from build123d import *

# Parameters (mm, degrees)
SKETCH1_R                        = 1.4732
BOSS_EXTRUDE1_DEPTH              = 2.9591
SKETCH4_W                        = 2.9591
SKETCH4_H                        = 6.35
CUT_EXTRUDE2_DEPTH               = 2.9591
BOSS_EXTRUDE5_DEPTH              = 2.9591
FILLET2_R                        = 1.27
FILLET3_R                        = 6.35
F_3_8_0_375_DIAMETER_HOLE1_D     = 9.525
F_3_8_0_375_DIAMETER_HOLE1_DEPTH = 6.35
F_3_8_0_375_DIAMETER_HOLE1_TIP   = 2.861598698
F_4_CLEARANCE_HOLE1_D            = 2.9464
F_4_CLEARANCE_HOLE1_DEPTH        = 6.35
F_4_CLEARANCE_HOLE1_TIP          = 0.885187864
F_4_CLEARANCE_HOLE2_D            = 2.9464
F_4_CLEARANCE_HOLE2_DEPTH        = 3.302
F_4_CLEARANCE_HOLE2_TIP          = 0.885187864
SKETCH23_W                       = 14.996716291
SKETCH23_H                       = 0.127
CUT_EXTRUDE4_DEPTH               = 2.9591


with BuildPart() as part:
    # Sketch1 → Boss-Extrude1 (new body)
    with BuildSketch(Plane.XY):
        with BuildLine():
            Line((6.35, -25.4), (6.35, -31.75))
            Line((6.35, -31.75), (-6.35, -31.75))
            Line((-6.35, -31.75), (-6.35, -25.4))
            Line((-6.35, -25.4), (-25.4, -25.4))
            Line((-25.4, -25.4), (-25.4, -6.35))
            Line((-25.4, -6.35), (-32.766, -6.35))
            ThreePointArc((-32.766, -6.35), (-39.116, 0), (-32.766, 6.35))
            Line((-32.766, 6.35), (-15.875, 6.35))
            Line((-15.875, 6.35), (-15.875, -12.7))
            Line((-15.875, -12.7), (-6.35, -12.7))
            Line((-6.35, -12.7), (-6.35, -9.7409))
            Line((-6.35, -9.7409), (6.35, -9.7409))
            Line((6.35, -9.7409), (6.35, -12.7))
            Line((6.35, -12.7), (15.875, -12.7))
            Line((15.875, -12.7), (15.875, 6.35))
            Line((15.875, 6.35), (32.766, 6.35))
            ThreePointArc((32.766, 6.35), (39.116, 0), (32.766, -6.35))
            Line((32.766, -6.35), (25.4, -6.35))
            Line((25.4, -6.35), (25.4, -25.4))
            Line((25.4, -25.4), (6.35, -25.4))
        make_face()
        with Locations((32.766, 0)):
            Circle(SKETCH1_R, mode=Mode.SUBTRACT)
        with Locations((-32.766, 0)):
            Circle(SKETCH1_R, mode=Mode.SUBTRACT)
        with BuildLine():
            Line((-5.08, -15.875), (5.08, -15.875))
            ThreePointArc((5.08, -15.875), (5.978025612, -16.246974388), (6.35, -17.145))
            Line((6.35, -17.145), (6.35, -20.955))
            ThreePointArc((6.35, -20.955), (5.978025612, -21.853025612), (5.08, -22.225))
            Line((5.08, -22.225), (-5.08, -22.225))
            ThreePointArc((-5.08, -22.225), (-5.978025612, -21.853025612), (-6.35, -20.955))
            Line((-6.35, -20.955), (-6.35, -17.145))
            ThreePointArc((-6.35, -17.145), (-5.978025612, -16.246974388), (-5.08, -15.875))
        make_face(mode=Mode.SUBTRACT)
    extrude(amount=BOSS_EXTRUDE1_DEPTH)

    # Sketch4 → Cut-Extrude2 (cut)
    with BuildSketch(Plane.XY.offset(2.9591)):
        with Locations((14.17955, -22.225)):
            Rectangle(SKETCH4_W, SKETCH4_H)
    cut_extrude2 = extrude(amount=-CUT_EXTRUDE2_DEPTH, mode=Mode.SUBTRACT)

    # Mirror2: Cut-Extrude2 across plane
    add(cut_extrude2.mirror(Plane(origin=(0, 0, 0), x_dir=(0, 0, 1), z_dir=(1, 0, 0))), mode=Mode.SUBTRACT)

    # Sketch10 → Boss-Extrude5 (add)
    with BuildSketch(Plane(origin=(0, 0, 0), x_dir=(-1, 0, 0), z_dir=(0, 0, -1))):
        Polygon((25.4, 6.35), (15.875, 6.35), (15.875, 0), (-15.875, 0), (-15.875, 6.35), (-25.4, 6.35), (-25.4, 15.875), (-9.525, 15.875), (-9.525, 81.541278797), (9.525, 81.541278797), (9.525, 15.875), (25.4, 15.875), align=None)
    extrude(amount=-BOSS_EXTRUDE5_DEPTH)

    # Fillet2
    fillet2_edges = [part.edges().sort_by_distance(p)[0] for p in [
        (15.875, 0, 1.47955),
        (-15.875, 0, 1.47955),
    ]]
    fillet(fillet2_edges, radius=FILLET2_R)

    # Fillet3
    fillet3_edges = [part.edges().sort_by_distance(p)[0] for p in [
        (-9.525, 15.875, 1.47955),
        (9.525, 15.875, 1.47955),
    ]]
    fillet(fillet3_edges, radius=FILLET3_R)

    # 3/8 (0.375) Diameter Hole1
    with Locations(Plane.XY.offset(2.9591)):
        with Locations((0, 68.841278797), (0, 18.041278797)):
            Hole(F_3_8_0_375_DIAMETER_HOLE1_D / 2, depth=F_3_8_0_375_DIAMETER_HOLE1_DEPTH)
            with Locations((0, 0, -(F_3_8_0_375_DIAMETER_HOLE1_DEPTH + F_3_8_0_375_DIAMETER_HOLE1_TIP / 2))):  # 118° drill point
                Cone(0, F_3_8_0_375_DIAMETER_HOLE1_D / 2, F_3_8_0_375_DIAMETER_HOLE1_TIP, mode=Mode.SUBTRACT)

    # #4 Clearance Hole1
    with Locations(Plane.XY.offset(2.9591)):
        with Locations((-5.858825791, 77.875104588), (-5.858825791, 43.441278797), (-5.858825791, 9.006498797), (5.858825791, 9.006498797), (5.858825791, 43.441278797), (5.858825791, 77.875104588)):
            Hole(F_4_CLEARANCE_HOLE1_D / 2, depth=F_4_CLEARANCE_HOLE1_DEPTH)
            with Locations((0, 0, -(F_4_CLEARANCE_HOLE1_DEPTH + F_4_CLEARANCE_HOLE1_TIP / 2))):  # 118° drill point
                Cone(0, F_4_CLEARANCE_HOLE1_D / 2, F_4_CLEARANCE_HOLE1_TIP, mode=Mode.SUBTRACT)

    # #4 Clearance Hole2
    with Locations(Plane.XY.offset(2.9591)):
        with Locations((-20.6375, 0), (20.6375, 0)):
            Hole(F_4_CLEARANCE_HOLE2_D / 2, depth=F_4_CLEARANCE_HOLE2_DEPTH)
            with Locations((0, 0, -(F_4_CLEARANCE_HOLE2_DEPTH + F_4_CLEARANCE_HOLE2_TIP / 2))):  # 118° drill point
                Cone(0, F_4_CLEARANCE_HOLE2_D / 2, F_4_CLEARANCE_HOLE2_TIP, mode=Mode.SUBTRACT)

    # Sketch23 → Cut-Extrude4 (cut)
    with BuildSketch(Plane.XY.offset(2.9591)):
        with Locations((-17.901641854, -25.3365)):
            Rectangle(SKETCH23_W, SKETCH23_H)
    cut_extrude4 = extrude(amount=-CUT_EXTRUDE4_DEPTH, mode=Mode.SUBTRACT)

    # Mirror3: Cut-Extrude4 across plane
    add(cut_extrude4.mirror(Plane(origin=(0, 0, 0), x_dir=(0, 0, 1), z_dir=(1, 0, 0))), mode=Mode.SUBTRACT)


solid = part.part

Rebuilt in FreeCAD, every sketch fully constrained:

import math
import FreeCAD as App
import Part
import Sketcher

V = App.Vector
Q = App.Units.Quantity


def edges_at(feature, points):
    """Names of the edges that pass closest to the given points."""
    edges = feature.Shape.Edges
    near = lambda p: min(range(len(edges)), key=lambda i: edges[i].distToShape(Part.Vertex(*p))[0])
    return sorted({f"Edge{near(p) + 1}" for p in points})


def add_polygon(sketch, points):
    """Adds a closed chain of lines whose ends are joined by coincident constraints."""
    first, n = sketch.GeometryCount, len(points)
    for a, b in zip(points, points[1:] + points[:1]):
        sketch.addGeometry(Part.LineSegment(App.Vector(*a, 0), App.Vector(*b, 0)), False)
    for i in range(n):
        sketch.addConstraint(Sketcher.Constraint("Coincident", first + i, 2, first + (i + 1) % n, 1))

doc = App.newDocument("Part")
body = doc.addObject("PartDesign::Body", "Body")

sketch1 = body.newObject("Sketcher::SketchObject", "Sketch")
sketch1.AttachmentSupport = (doc.getObject("XY_Plane"), [""])
sketch1.MapMode = "FlatFace"
sketch1.addGeometry(Part.LineSegment(V(6.3, -31.8, 0), V(6.3, -25.4, 0)), False)
sketch1.addGeometry(Part.LineSegment(V(6.3, -25.4, 0), V(25.4, -25.4, 0)), False)
sketch1.addGeometry(Part.LineSegment(V(25.4, -25.4, 0), V(25.4, -6.3, 0)), False)
sketch1.addGeometry(Part.LineSegment(V(25.4, -6.3, 0), V(32.8, -6.3, 0)), False)
sketch1.addGeometry(Part.ArcOfCircle(Part.Circle(V(32.8, 0, 0), V(0, 0, 1), 6.3), math.radians(-90), math.radians(90)), False)
sketch1.addGeometry(Part.LineSegment(V(32.8, 6.3, 0), V(15.9, 6.3, 0)), False)
sketch1.addGeometry(Part.LineSegment(V(15.9, 6.3, 0), V(15.9, -12.7, 0)), False)
sketch1.addGeometry(Part.LineSegment(V(15.9, -12.7, 0), V(6.3, -12.7, 0)), False)
sketch1.addGeometry(Part.LineSegment(V(6.3, -12.7, 0), V(6.3, -9.7, 0)), False)
sketch1.addGeometry(Part.LineSegment(V(6.3, -9.7, 0), V(-6.3, -9.7, 0)), False)
sketch1.addGeometry(Part.LineSegment(V(-6.3, -9.7, 0), V(-6.3, -12.7, 0)), False)
sketch1.addGeometry(Part.LineSegment(V(-6.3, -12.7, 0), V(-15.9, -12.7, 0)), False)
sketch1.addGeometry(Part.LineSegment(V(-15.9, -12.7, 0), V(-15.9, 6.3, 0)), False)
sketch1.addGeometry(Part.LineSegment(V(-15.9, 6.3, 0), V(-32.8, 6.3, 0)), False)
sketch1.addGeometry(Part.ArcOfCircle(Part.Circle(V(-32.8, 0, 0), V(0, 0, 1), 6.3), math.radians(90), math.radians(270)), False)
sketch1.addGeometry(Part.LineSegment(V(-32.8, -6.3, 0), V(-25.4, -6.3, 0)), False)
sketch1.addGeometry(Part.LineSegment(V(-25.4, -6.3, 0), V(-25.4, -25.4, 0)), False)
sketch1.addGeometry(Part.LineSegment(V(-25.4, -25.4, 0), V(-6.3, -25.4, 0)), False)
sketch1.addGeometry(Part.LineSegment(V(-6.3, -25.4, 0), V(-6.3, -31.8, 0)), False)
sketch1.addGeometry(Part.LineSegment(V(-6.3, -31.8, 0), V(6.3, -31.8, 0)), False)
sketch1.addGeometry(Part.LineSegment(V(-5.1, -15.9, 0), V(5.1, -15.9, 0)), False)
sketch1.addGeometry(Part.ArcOfCircle(Part.Circle(V(5.1, -17.1, 0), V(0, 0, 1), 1.3), math.radians(0), math.radians(90)), False)
sketch1.addGeometry(Part.LineSegment(V(6.3, -17.1, 0), V(6.3, -21, 0)), False)
sketch1.addGeometry(Part.ArcOfCircle(Part.Circle(V(5.1, -21, 0), V(0, 0, 1), 1.3), math.radians(-90), math.radians(0)), False)
sketch1.addGeometry(Part.LineSegment(V(5.1, -22.2, 0), V(-5.1, -22.2, 0)), False)
sketch1.addGeometry(Part.ArcOfCircle(Part.Circle(V(-5.1, -21, 0), V(0, 0, 1), 1.3), math.radians(180), math.radians(270)), False)
sketch1.addGeometry(Part.LineSegment(V(-6.3, -21, 0), V(-6.3, -17.1, 0)), False)
sketch1.addGeometry(Part.ArcOfCircle(Part.Circle(V(-5.1, -17.1, 0), V(0, 0, 1), 1.3), math.radians(90), math.radians(180)), False)
sketch1.addGeometry(Part.Circle(V(32.8, 0, 0), V(0, 0, 1), 1.5), False)
sketch1.addGeometry(Part.Circle(V(-32.8, 0, 0), V(0, 0, 1), 1.5), False)
sketch1.addConstraint(Sketcher.Constraint("Coincident", 0, 2, 1, 1))
sketch1.addConstraint(Sketcher.Constraint("Coincident", 1, 2, 2, 1))
sketch1.addConstraint(Sketcher.Constraint("Coincident", 2, 2, 3, 1))
sketch1.addConstraint(Sketcher.Constraint("Tangent", 3, 2, 4, 1))
sketch1.addConstraint(Sketcher.Constraint("Tangent", 4, 2, 5, 1))
sketch1.addConstraint(Sketcher.Constraint("Coincident", 5, 2, 6, 1))
sketch1.addConstraint(Sketcher.Constraint("Coincident", 6, 2, 7, 1))
sketch1.addConstraint(Sketcher.Constraint("Coincident", 7, 2, 8, 1))
sketch1.addConstraint(Sketcher.Constraint("Coincident", 8, 2, 9, 1))
sketch1.addConstraint(Sketcher.Constraint("Coincident", 9, 2, 10, 1))
sketch1.addConstraint(Sketcher.Constraint("Coincident", 10, 2, 11, 1))
sketch1.addConstraint(Sketcher.Constraint("Coincident", 11, 2, 12, 1))
sketch1.addConstraint(Sketcher.Constraint("Coincident", 12, 2, 13, 1))
sketch1.addConstraint(Sketcher.Constraint("Tangent", 13, 2, 14, 1))
sketch1.addConstraint(Sketcher.Constraint("Tangent", 14, 2, 15, 1))
sketch1.addConstraint(Sketcher.Constraint("Coincident", 15, 2, 16, 1))
sketch1.addConstraint(Sketcher.Constraint("Coincident", 16, 2, 17, 1))
sketch1.addConstraint(Sketcher.Constraint("Coincident", 17, 2, 18, 1))
sketch1.addConstraint(Sketcher.Constraint("Coincident", 18, 2, 19, 1))
sketch1.addConstraint(Sketcher.Constraint("Coincident", 19, 2, 0, 1))
sketch1.addConstraint(Sketcher.Constraint("Tangent", 20, 2, 21, 2))
sketch1.addConstraint(Sketcher.Constraint("Tangent", 21, 1, 22, 1))
sketch1.addConstraint(Sketcher.Constraint("Tangent", 22, 2, 23, 2))
sketch1.addConstraint(Sketcher.Constraint("Tangent", 23, 1, 24, 1))
sketch1.addConstraint(Sketcher.Constraint("Tangent", 24, 2, 25, 2))
sketch1.addConstraint(Sketcher.Constraint("Tangent", 25, 1, 26, 1))
sketch1.addConstraint(Sketcher.Constraint("Tangent", 26, 2, 27, 2))
sketch1.addConstraint(Sketcher.Constraint("Tangent", 27, 1, 20, 1))
sketch1.addConstraint(Sketcher.Constraint("Vertical", 0))
sketch1.addConstraint(Sketcher.Constraint("Horizontal", 1))
sketch1.addConstraint(Sketcher.Constraint("Vertical", 2))
sketch1.addConstraint(Sketcher.Constraint("Horizontal", 3))
sketch1.addConstraint(Sketcher.Constraint("Horizontal", 5))
sketch1.addConstraint(Sketcher.Constraint("Vertical", 6))
sketch1.addConstraint(Sketcher.Constraint("Horizontal", 7))
sketch1.addConstraint(Sketcher.Constraint("Vertical", 8))
sketch1.addConstraint(Sketcher.Constraint("Horizontal", 9))
sketch1.addConstraint(Sketcher.Constraint("Vertical", 10))
sketch1.addConstraint(Sketcher.Constraint("Horizontal", 11))
sketch1.addConstraint(Sketcher.Constraint("Vertical", 12))
sketch1.addConstraint(Sketcher.Constraint("Horizontal", 13))
sketch1.addConstraint(Sketcher.Constraint("Horizontal", 15))
sketch1.addConstraint(Sketcher.Constraint("Vertical", 16))
sketch1.addConstraint(Sketcher.Constraint("Horizontal", 17))
sketch1.addConstraint(Sketcher.Constraint("Vertical", 18))
sketch1.addConstraint(Sketcher.Constraint("Horizontal", 19))
sketch1.addConstraint(Sketcher.Constraint("Horizontal", 20))
sketch1.addConstraint(Sketcher.Constraint("Vertical", 22))
sketch1.addConstraint(Sketcher.Constraint("Horizontal", 24))
sketch1.addConstraint(Sketcher.Constraint("Vertical", 26))
sketch1.addConstraint(Sketcher.Constraint("Coincident", 28, 3, 4, 3))
sketch1.addConstraint(Sketcher.Constraint("Coincident", 29, 3, 14, 3))
sketch1.addConstraint(Sketcher.Constraint("Equal", 4, 14))
sketch1.addConstraint(Sketcher.Constraint("Equal", 21, 23))
sketch1.addConstraint(Sketcher.Constraint("Equal", 23, 25))
sketch1.addConstraint(Sketcher.Constraint("Equal", 25, 27))
sketch1.addConstraint(Sketcher.Constraint("Equal", 28, 29))
sketch1.addConstraint(Sketcher.Constraint("Symmetric", 4, 3, 14, 3, -1, 1))
sketch1.addConstraint(Sketcher.Constraint("Symmetric", 7, 2, 10, 2, -2))
sketch1.addConstraint(Sketcher.Constraint("Symmetric", 5, 2, 12, 2, -2))
sketch1.addConstraint(Sketcher.Constraint("Symmetric", 1, 2, 16, 2, -2))
sketch1.addConstraint(Sketcher.Constraint("Vertical", 0, 2, 7, 2))
sketch1.addConstraint(Sketcher.Constraint("Vertical", 10, 2, 17, 2))
sketch1.addConstraint(Sketcher.Constraint("Vertical", 19, 2, 21, 1))
sketch1.addConstraint(Sketcher.Constraint("Vertical", 18, 2, 25, 1))
sketch1.addConstraint(Sketcher.Constraint("Equal", 17, 2))
sketch1.addConstraint(Sketcher.Constraint("Equal", 2, 6))
sketch1.addConstraint(Sketcher.Constraint("Radius", 4, Q("0.25 in")))
sketch1.addConstraint(Sketcher.Constraint("Radius", 21, Q("0.05 in")))
sketch1.addConstraint(Sketcher.Constraint("Diameter", 28, Q("0.116 in")))
sketch1.addConstraint(Sketcher.Constraint("DistanceX", 9, 2, 9, 1, Q("0.5 in")))
sketch1.addConstraint(Sketcher.Constraint("DistanceY", 0, 2, -1, 1, Q("1 in")))
sketch1.addConstraint(Sketcher.Constraint("DistanceX", 3, 1, 3, 2, Q("0.29 in")))
sketch1.addConstraint(Sketcher.Constraint("DistanceY", 0, 1, 0, 2, Q("0.25 in")))
sketch1.addConstraint(Sketcher.Constraint("DistanceY", 22, 2, 22, 1, Q("0.15 in")))
sketch1.addConstraint(Sketcher.Constraint("DistanceX", 5, 2, 5, 1, Q("0.665 in")))
sketch1.addConstraint(Sketcher.Constraint("DistanceY", 8, 1, 8, 2, Q("0.1165 in")))
sketch1.addConstraint(Sketcher.Constraint("DistanceY", 21, 3, -1, 1, Q("0.675 in")))
pad1 = body.newObject("PartDesign::Pad", "Pad")
pad1.Profile = sketch1
pad1.Length = Q("0.1165 in")

sketch2 = body.newObject("Sketcher::SketchObject", "Sketch001")
sketch2.AttachmentSupport = (doc.getObject("XY_Plane"), [""])
sketch2.MapMode = "FlatFace"
sketch2.AttachmentOffset = App.Placement(V(0, 0, 0.1165 * 25.4), App.Rotation())
add_polygon(sketch2, [(12.7, -19.1), (12.7, -25.4), (15.7, -25.4), (15.7, -19.1)])
sketch2.addConstraint(Sketcher.Constraint("Vertical", 0))
sketch2.addConstraint(Sketcher.Constraint("Horizontal", 1))
sketch2.addConstraint(Sketcher.Constraint("Vertical", 2))
sketch2.addConstraint(Sketcher.Constraint("Horizontal", 3))
sketch2.addConstraint(Sketcher.Constraint("DistanceY", 0, 2, -1, 1, Q("1 in")))
sketch2.addConstraint(Sketcher.Constraint("DistanceY", 0, 2, 0, 1, Q("0.25 in")))
sketch2.addConstraint(Sketcher.Constraint("DistanceX", -1, 1, 0, 2, Q("0.5 in")))
sketch2.addConstraint(Sketcher.Constraint("DistanceX", 1, 1, 1, 2, Q("0.1165 in")))
pocket1 = body.newObject("PartDesign::Pocket", "Pocket")
pocket1.Profile = sketch2
pocket1.Length = Q("0.1165 in")
doc.recompute()

mirrored = body.newObject("PartDesign::Mirrored", "Mirrored")
mirrored.Originals = [pocket1]
mirrored.MirrorPlane = (doc.getObject("YZ_Plane"), [""])
body.Tip = mirrored

sketch3 = body.newObject("Sketcher::SketchObject", "Sketch002")
sketch3.AttachmentSupport = (doc.getObject("XY_Plane"), [""])
sketch3.MapMode = "FlatFace"
add_polygon(sketch3, [(-16, 6), (-25, 6), (-25, 16), (-10, 16), (-10, 82), (10, 82), (10, 16), (25, 16), (25, 6), (16, 6), (16, 0), (-16, 0)])
sketch3.addConstraint(Sketcher.Constraint("Horizontal", 0))
sketch3.addConstraint(Sketcher.Constraint("Vertical", 1))
sketch3.addConstraint(Sketcher.Constraint("Horizontal", 2))
sketch3.addConstraint(Sketcher.Constraint("Vertical", 3))
sketch3.addConstraint(Sketcher.Constraint("Horizontal", 4))
sketch3.addConstraint(Sketcher.Constraint("Vertical", 5))
sketch3.addConstraint(Sketcher.Constraint("Horizontal", 6))
sketch3.addConstraint(Sketcher.Constraint("Vertical", 7))
sketch3.addConstraint(Sketcher.Constraint("Horizontal", 8))
sketch3.addConstraint(Sketcher.Constraint("Vertical", 9))
sketch3.addConstraint(Sketcher.Constraint("Horizontal", 10))
sketch3.addConstraint(Sketcher.Constraint("Vertical", 11))
sketch3.addConstraint(Sketcher.Constraint("Symmetric", 9, 2, 10, 2, -1, 1))
sketch3.addConstraint(Sketcher.Constraint("Symmetric", 2, 2, 5, 2, -2))
sketch3.addConstraint(Sketcher.Constraint("Symmetric", 0, 2, 7, 2, -2))
sketch3.addConstraint(Sketcher.Constraint("Equal", 8, 1))
sketch3.addConstraint(Sketcher.Constraint("DistanceX", 0, 2, -1, 1, Q("1 in")))
sketch3.addConstraint(Sketcher.Constraint("DistanceX", 2, 2, 8, 2, Q("1 in")))
sketch3.addConstraint(Sketcher.Constraint("DistanceX", 4, 1, 4, 2, Q("0.75 in")))
sketch3.addConstraint(Sketcher.Constraint("DistanceY", 9, 2, 9, 1, Q("0.25 in")))
sketch3.addConstraint(Sketcher.Constraint("DistanceY", 3, 1, 3, 2, 65.666279))
pad2 = body.newObject("PartDesign::Pad", "Pad001")
pad2.Profile = sketch3
pad2.Length = Q("0.1165 in")
doc.recompute()

fillet = body.newObject("PartDesign::Fillet", "Fillet")
fillet.Base = (pad2, edges_at(pad2, [(15.875, 0, 1.48), (-15.875, 0, 1.48)]))
fillet.Radius = Q("0.05 in")
doc.recompute()

fillet2 = body.newObject("PartDesign::Fillet", "Fillet001")
fillet2.Base = (fillet, edges_at(fillet, [(-9.525, 15.875, 1.48), (9.525, 15.875, 1.48)]))
fillet2.Radius = Q("0.25 in")

sketch4 = body.newObject("Sketcher::SketchObject", "Sketch003")
sketch4.AttachmentSupport = (doc.getObject("XY_Plane"), [""])
sketch4.MapMode = "FlatFace"
sketch4.AttachmentOffset = App.Placement(V(0, 0, 0.1165 * 25.4), App.Rotation())
sketch4.addGeometry(Part.Circle(V(0, 68.8, 0), V(0, 0, 1), 4.8), False)
sketch4.addGeometry(Part.Circle(V(0, 18, 0), V(0, 0, 1), 4.8), False)
sketch4.addConstraint(Sketcher.Constraint("Equal", 0, 1))
sketch4.addConstraint(Sketcher.Constraint("PointOnObject", 0, 3, -2))
sketch4.addConstraint(Sketcher.Constraint("PointOnObject", 1, 3, -2))
sketch4.addConstraint(Sketcher.Constraint("Diameter", 0, Q("0.375 in")))
sketch4.addConstraint(Sketcher.Constraint("DistanceY", 1, 3, 0, 3, Q("2 in")))
sketch4.addConstraint(Sketcher.Constraint("DistanceY", -1, 1, 0, 3, 68.841279))
doc.recompute()
hole = body.newObject("PartDesign::Hole", "Hole")
hole.Profile = sketch4
hole.ThreadType = "None"
hole.Diameter = Q("0.375 in")
hole.DepthType = "Dimension"
hole.Depth = Q("0.25 in")
hole.DrillPoint = "Angled"
hole.DrillPointAngle = 118

sketch5 = body.newObject("Sketcher::SketchObject", "Sketch004")
sketch5.AttachmentSupport = (doc.getObject("XY_Plane"), [""])
sketch5.MapMode = "FlatFace"
sketch5.AttachmentOffset = App.Placement(V(0, 0, 0.1165 * 25.4), App.Rotation())
sketch5.addGeometry(Part.Circle(V(-5.9, 77.9, 0), V(0, 0, 1), 1.5), False)
sketch5.addGeometry(Part.Circle(V(-5.9, 43.4, 0), V(0, 0, 1), 1.5), False)
sketch5.addGeometry(Part.Circle(V(-5.9, 9, 0), V(0, 0, 1), 1.5), False)
sketch5.addGeometry(Part.Circle(V(5.9, 9, 0), V(0, 0, 1), 1.5), False)
sketch5.addGeometry(Part.Circle(V(5.9, 43.4, 0), V(0, 0, 1), 1.5), False)
sketch5.addGeometry(Part.Circle(V(5.9, 77.9, 0), V(0, 0, 1), 1.5), False)
sketch5.addConstraint(Sketcher.Constraint("Equal", 0, 1))
sketch5.addConstraint(Sketcher.Constraint("Equal", 1, 2))
sketch5.addConstraint(Sketcher.Constraint("Equal", 2, 3))
sketch5.addConstraint(Sketcher.Constraint("Equal", 3, 4))
sketch5.addConstraint(Sketcher.Constraint("Equal", 4, 5))
sketch5.addConstraint(Sketcher.Constraint("Symmetric", 2, 3, 3, 3, -2))
sketch5.addConstraint(Sketcher.Constraint("Symmetric", 1, 3, 4, 3, -2))
sketch5.addConstraint(Sketcher.Constraint("Symmetric", 0, 3, 5, 3, -2))
sketch5.addConstraint(Sketcher.Constraint("Vertical", 0, 3, 1, 3))
sketch5.addConstraint(Sketcher.Constraint("Vertical", 1, 3, 2, 3))
sketch5.addConstraint(Sketcher.Constraint("Diameter", 0, Q("0.116 in")))
sketch5.addConstraint(Sketcher.Constraint("DistanceY", 2, 3, 1, 3, Q("1.3557 in")))
sketch5.addConstraint(Sketcher.Constraint("DistanceY", -1, 1, 2, 3, 9.006499))
sketch5.addConstraint(Sketcher.Constraint("DistanceX", 2, 3, 3, 3, 11.717652))
sketch5.addConstraint(Sketcher.Constraint("DistanceY", -1, 1, 0, 3, 77.875105))
doc.recompute()
hole2 = body.newObject("PartDesign::Hole", "Hole001")
hole2.Profile = sketch5
hole2.ThreadType = "None"
hole2.Diameter = Q("0.116 in")
hole2.DepthType = "Dimension"
hole2.Depth = Q("0.25 in")
hole2.DrillPoint = "Angled"
hole2.DrillPointAngle = 118

sketch6 = body.newObject("Sketcher::SketchObject", "Sketch005")
sketch6.AttachmentSupport = (doc.getObject("XY_Plane"), [""])
sketch6.MapMode = "FlatFace"
sketch6.AttachmentOffset = App.Placement(V(0, 0, 0.1165 * 25.4), App.Rotation())
sketch6.addGeometry(Part.Circle(V(-20.6, 0, 0), V(0, 0, 1), 1.5), False)
sketch6.addGeometry(Part.Circle(V(20.6, 0, 0), V(0, 0, 1), 1.5), False)
sketch6.addConstraint(Sketcher.Constraint("Equal", 0, 1))
sketch6.addConstraint(Sketcher.Constraint("Symmetric", 0, 3, 1, 3, -1, 1))
sketch6.addConstraint(Sketcher.Constraint("PointOnObject", 0, 3, -1))
sketch6.addConstraint(Sketcher.Constraint("Diameter", 0, Q("0.116 in")))
sketch6.addConstraint(Sketcher.Constraint("DistanceX", 0, 3, -1, 1, Q("0.8125 in")))
doc.recompute()
hole3 = body.newObject("PartDesign::Hole", "Hole002")
hole3.Profile = sketch6
hole3.ThreadType = "None"
hole3.Diameter = Q("0.116 in")
hole3.DepthType = "Dimension"
hole3.Depth = Q("0.13 in")
hole3.DrillPoint = "Angled"
hole3.DrillPointAngle = 118

sketch7 = body.newObject("Sketcher::SketchObject", "Sketch006")
sketch7.AttachmentSupport = (doc.getObject("XY_Plane"), [""])
sketch7.MapMode = "FlatFace"
sketch7.AttachmentOffset = App.Placement(V(0, 0, 0.1165 * 25.4), App.Rotation())
add_polygon(sketch7, [(-25.4, -25.27), (-25.4, -25.4), (-10.4, -25.4), (-10.4, -25.27)])
sketch7.addConstraint(Sketcher.Constraint("Vertical", 0))
sketch7.addConstraint(Sketcher.Constraint("Horizontal", 1))
sketch7.addConstraint(Sketcher.Constraint("Vertical", 2))
sketch7.addConstraint(Sketcher.Constraint("Horizontal", 3))
sketch7.addConstraint(Sketcher.Constraint("DistanceX", 0, 2, -1, 1, Q("1 in")))
sketch7.addConstraint(Sketcher.Constraint("DistanceY", 0, 2, -1, 1, Q("1 in")))
sketch7.addConstraint(Sketcher.Constraint("DistanceY", 0, 2, 0, 1, Q("0.005 in")))
sketch7.addConstraint(Sketcher.Constraint("DistanceX", 1, 1, 1, 2, 14.996716))
pocket2 = body.newObject("PartDesign::Pocket", "Pocket001")
pocket2.Profile = sketch7
pocket2.Length = Q("0.1165 in")
doc.recompute()

mirrored2 = body.newObject("PartDesign::Mirrored", "Mirrored001")
mirrored2.Originals = [pocket2]
mirrored2.MirrorPlane = (doc.getObject("YZ_Plane"), [""])
body.Tip = mirrored2

doc.recompute()
